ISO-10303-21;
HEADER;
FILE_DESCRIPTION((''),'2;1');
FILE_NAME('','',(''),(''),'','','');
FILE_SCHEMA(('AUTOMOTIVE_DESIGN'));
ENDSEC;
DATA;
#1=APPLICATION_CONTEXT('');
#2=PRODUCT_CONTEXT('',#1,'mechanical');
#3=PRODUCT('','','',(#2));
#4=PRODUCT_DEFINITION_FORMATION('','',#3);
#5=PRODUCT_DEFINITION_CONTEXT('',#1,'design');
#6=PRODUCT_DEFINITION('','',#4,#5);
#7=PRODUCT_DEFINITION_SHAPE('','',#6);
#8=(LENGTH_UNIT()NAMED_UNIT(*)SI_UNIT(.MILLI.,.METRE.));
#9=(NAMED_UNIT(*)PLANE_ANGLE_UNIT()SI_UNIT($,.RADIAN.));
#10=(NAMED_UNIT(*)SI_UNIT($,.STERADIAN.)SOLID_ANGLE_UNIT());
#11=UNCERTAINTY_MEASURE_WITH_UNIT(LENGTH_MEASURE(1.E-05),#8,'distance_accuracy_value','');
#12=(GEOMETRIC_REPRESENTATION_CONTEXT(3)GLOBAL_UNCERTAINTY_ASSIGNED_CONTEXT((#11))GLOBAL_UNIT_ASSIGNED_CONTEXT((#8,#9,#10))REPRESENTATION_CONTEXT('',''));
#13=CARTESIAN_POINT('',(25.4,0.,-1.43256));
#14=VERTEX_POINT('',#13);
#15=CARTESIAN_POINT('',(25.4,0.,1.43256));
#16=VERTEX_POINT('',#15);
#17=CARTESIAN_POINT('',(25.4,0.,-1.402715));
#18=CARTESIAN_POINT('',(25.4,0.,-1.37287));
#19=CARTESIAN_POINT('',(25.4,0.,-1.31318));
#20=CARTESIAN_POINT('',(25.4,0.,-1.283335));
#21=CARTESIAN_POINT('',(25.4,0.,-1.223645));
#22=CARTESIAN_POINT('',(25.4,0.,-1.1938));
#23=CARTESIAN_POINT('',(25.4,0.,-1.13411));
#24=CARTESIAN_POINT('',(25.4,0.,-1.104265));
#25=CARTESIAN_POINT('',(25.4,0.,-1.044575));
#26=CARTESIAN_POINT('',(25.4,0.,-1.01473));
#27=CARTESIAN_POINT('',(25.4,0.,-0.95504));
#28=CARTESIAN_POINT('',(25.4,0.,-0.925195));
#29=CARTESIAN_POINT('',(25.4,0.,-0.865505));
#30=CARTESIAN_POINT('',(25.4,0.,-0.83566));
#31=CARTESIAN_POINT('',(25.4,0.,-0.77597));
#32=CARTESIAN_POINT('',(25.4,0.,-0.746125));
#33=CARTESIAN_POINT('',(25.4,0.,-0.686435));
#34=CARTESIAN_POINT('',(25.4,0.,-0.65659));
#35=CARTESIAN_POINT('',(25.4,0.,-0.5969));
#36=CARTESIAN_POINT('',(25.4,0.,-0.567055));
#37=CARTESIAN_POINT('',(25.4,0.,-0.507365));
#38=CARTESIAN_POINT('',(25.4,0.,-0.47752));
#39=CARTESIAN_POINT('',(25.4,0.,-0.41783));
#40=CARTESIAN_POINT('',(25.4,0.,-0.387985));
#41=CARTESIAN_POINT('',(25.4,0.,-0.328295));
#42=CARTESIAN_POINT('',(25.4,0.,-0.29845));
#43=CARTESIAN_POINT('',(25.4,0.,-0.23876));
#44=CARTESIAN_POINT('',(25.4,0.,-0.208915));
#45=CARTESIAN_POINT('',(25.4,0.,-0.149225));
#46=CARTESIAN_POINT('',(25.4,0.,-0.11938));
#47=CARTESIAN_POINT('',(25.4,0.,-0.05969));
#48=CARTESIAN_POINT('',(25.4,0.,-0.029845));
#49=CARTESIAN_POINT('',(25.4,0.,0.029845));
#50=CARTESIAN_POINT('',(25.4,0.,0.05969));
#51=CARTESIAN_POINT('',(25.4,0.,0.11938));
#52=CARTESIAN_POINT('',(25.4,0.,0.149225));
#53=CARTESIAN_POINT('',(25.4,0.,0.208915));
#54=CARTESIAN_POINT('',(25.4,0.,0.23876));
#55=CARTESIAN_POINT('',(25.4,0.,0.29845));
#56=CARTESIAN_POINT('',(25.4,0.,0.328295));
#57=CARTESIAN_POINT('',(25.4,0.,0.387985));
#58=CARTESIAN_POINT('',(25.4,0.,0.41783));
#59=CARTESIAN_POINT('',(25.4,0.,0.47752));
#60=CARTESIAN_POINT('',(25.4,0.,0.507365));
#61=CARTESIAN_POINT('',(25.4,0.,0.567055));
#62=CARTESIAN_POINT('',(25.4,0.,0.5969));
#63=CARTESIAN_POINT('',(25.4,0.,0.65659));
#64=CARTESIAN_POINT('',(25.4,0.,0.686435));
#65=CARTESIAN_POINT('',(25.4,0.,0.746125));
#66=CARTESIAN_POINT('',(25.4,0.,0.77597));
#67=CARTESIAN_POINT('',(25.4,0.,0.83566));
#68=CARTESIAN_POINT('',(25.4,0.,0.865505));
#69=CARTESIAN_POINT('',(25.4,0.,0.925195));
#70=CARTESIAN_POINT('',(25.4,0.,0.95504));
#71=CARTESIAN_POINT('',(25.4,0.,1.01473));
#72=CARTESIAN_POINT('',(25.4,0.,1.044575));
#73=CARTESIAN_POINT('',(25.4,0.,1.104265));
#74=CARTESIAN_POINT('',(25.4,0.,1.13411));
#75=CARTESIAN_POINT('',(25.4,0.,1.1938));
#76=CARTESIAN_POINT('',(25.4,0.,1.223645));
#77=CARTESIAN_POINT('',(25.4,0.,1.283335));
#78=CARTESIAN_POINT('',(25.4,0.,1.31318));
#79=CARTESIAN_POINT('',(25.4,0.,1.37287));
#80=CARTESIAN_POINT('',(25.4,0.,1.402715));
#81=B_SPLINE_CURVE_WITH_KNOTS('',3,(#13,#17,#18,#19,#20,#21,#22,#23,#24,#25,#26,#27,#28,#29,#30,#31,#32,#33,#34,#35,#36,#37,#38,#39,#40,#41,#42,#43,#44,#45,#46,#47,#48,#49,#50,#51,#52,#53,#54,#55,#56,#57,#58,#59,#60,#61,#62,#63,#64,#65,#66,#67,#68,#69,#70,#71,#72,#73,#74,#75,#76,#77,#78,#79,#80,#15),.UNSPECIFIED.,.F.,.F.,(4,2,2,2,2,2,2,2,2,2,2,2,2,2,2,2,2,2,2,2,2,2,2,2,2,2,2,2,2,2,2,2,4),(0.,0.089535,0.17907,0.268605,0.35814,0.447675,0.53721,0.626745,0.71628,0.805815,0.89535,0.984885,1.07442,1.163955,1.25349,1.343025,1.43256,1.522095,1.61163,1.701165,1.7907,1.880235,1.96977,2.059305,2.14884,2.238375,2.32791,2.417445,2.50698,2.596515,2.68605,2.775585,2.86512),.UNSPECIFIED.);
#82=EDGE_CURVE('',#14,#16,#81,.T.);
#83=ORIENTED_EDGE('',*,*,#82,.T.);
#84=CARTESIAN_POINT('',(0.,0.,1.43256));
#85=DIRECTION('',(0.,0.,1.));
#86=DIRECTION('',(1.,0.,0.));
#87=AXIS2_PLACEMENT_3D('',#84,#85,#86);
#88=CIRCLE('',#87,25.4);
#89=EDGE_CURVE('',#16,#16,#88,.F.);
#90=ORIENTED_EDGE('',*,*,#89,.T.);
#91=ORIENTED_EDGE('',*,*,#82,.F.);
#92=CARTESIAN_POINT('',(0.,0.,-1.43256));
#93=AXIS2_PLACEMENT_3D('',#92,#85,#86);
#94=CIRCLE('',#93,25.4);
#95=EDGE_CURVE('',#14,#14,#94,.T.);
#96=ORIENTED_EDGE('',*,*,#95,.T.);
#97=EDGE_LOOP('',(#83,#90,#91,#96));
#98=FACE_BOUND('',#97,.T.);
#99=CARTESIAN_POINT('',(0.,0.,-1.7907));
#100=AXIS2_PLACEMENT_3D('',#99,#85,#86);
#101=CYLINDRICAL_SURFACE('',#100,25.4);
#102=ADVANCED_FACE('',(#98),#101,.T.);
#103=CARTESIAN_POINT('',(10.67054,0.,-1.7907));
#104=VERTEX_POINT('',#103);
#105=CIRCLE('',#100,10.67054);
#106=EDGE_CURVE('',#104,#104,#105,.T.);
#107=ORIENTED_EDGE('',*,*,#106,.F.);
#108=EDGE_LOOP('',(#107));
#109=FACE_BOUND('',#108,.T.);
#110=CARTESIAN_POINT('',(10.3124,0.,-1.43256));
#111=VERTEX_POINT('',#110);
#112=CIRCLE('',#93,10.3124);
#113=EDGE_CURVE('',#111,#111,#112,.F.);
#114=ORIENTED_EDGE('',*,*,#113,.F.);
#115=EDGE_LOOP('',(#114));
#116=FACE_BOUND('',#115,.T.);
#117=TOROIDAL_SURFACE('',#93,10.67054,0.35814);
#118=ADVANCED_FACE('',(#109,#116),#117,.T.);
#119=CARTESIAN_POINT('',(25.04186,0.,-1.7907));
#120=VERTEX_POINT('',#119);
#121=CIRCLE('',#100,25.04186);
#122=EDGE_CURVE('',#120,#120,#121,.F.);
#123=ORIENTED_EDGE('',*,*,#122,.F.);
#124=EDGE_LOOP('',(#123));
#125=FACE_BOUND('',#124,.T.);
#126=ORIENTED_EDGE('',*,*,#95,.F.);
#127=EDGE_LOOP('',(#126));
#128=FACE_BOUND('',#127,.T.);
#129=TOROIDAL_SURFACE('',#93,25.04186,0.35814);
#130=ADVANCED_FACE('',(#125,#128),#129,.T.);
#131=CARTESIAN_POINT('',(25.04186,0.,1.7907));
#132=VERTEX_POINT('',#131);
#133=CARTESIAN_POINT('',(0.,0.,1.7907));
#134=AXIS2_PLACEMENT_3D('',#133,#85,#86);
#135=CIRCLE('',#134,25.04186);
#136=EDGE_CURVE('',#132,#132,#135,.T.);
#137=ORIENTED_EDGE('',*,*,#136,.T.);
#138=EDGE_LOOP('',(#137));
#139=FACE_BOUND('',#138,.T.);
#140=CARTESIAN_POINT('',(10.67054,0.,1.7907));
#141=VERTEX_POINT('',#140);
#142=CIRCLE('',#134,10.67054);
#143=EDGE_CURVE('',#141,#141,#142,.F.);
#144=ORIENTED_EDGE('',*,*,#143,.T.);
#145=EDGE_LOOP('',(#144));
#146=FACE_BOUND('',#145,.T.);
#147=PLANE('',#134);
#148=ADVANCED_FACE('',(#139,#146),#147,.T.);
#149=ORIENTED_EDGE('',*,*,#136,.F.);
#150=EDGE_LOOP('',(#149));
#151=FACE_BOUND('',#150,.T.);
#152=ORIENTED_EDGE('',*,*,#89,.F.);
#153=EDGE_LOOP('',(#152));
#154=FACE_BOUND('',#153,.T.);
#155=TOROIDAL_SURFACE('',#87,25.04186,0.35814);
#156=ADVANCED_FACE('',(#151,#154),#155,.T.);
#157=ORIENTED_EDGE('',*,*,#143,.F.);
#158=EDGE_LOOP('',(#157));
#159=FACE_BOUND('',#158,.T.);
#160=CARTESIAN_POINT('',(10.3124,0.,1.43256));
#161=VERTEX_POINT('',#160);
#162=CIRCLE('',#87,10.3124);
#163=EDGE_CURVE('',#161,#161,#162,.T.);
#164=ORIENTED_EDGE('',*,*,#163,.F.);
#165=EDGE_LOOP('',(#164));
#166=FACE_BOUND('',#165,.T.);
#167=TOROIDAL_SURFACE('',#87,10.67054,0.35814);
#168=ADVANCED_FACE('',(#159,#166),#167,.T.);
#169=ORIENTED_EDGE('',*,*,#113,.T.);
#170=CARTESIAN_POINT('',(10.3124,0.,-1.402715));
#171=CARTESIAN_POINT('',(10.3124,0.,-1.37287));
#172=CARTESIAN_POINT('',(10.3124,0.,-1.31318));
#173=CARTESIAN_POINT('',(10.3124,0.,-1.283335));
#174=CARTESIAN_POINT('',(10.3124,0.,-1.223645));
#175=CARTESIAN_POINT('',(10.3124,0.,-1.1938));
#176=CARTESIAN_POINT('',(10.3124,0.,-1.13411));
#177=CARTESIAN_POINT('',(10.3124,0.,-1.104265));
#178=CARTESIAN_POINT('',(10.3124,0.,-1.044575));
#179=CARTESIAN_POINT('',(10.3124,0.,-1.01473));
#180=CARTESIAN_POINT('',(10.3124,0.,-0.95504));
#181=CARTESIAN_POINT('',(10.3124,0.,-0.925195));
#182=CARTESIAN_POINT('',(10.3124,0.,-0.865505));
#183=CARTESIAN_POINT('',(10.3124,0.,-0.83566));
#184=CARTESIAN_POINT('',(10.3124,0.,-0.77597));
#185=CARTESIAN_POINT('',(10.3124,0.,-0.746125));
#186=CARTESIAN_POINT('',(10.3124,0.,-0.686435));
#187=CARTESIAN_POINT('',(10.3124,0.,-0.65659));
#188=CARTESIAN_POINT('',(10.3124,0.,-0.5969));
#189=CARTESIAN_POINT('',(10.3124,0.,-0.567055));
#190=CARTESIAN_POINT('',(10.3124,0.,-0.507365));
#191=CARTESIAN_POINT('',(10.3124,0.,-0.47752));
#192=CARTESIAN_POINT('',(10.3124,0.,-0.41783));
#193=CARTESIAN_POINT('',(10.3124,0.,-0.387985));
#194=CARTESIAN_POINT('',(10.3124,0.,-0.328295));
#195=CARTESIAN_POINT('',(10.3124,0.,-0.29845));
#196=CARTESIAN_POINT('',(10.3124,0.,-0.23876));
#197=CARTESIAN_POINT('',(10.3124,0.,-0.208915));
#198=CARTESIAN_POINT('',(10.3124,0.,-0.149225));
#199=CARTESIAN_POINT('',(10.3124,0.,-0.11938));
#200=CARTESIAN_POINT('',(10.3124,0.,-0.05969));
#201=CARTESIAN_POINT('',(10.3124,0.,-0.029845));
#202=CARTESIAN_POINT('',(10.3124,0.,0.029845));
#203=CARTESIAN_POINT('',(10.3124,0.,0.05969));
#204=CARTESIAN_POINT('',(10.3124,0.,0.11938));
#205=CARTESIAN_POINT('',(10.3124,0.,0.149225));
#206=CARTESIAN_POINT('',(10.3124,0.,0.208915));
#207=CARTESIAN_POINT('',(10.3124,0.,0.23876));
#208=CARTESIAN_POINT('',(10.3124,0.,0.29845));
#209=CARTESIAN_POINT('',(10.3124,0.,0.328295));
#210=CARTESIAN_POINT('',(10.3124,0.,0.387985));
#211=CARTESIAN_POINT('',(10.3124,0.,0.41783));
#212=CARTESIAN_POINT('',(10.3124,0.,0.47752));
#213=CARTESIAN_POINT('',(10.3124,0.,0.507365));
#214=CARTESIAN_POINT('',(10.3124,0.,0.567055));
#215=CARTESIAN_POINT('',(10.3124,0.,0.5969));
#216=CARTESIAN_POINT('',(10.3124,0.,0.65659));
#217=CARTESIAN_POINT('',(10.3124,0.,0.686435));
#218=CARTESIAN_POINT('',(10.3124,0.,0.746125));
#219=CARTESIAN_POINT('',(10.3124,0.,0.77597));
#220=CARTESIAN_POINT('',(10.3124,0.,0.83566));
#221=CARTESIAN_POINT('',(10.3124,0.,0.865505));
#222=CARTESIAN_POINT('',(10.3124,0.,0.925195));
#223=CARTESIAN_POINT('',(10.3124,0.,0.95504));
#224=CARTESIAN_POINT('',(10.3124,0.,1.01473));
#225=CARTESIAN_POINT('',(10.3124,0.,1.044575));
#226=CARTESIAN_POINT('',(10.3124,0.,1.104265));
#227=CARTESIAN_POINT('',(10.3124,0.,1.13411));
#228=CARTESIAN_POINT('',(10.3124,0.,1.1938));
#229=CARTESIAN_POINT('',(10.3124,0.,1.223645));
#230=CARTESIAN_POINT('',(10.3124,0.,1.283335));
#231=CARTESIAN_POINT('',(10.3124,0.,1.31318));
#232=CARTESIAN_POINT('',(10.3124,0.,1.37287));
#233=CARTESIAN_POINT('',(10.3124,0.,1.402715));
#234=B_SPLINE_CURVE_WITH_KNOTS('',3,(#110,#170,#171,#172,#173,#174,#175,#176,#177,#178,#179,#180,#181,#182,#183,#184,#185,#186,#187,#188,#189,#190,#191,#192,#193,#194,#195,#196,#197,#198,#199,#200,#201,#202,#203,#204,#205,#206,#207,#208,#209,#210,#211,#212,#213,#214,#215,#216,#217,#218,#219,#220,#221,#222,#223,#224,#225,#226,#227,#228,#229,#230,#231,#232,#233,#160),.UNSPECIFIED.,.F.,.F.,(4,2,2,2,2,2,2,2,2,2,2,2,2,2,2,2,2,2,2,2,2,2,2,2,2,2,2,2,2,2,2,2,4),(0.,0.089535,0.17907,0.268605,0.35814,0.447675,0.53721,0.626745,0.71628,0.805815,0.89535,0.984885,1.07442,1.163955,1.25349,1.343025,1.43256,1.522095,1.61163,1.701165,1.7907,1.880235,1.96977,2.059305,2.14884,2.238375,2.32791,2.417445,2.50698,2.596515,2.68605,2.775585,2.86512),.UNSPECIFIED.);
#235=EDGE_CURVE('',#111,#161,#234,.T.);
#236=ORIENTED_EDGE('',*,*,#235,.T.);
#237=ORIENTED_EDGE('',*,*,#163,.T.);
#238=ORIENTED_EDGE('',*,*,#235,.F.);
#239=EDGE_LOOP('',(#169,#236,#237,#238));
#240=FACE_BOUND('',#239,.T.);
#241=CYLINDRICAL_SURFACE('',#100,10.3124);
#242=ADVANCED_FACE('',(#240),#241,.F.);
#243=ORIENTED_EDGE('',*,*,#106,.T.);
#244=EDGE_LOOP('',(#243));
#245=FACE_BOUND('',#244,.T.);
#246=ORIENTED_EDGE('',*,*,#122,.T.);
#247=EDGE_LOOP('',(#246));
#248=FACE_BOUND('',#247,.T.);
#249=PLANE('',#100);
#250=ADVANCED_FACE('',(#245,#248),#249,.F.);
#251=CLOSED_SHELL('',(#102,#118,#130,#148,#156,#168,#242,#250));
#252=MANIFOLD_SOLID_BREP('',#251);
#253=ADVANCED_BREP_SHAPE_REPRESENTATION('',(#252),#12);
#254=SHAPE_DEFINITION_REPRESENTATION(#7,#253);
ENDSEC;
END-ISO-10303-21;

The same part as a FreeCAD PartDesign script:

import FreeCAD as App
import Part
import Sketcher
from FreeCAD import Vector
Q = App.Units.Quantity


def edges_at(feature, points):
    """Names of the edges that pass closest to the given points."""
    edges = feature.Shape.Edges
    near = lambda p: min(range(len(edges)), key=lambda i: edges[i].distToShape(Part.Vertex(*p))[0])
    return sorted({f"Edge{near(p) + 1}" for p in points})

doc = App.newDocument("Part")
body = doc.addObject("PartDesign::Body", "Body")

# Sketch on XY plane
sketch1 = body.newObject("Sketcher::SketchObject", "Sketch")
sketch1.AttachmentSupport = (doc.getObject("XY_Plane"), [""])
sketch1.MapMode = "FlatFace"
sketch1.addGeometry([
    Part.Circle(Vector(0, 0, 0), Vector(0, 0, 1), 25),
    Part.Circle(Vector(0, 0, 0), Vector(0, 0, 1), 10),
], False)
sketch1.addConstraint([
    Sketcher.Constraint("Coincident", 0, 3, -1, 1),
    Sketcher.Constraint("Coincident", 1, 3, -1, 1),
    Sketcher.Constraint("Diameter", 0, Q("2 in")),
    Sketcher.Constraint("Diameter", 1, Q("0.812 in")),
])
pad1 = body.newObject("PartDesign::Pad", "Pad")
pad1.Profile = sketch1
pad1.Type = "TwoLengths"
pad1.Length = Q("0.0705 in")
pad1.Length2 = Q("0.0705 in")
doc.recompute()

fillet = body.newObject("PartDesign::Fillet", "Fillet")
fillet.Base = (pad1, edges_at(pad1, [
    (-25.4, 0, -1.791),
    (-10.312, 0, -1.791),
    (-25.4, 0, 1.791),
    (-10.312, 0, 1.791),
]))
fillet.Radius = Q("0.0141 in")

doc.recompute()
